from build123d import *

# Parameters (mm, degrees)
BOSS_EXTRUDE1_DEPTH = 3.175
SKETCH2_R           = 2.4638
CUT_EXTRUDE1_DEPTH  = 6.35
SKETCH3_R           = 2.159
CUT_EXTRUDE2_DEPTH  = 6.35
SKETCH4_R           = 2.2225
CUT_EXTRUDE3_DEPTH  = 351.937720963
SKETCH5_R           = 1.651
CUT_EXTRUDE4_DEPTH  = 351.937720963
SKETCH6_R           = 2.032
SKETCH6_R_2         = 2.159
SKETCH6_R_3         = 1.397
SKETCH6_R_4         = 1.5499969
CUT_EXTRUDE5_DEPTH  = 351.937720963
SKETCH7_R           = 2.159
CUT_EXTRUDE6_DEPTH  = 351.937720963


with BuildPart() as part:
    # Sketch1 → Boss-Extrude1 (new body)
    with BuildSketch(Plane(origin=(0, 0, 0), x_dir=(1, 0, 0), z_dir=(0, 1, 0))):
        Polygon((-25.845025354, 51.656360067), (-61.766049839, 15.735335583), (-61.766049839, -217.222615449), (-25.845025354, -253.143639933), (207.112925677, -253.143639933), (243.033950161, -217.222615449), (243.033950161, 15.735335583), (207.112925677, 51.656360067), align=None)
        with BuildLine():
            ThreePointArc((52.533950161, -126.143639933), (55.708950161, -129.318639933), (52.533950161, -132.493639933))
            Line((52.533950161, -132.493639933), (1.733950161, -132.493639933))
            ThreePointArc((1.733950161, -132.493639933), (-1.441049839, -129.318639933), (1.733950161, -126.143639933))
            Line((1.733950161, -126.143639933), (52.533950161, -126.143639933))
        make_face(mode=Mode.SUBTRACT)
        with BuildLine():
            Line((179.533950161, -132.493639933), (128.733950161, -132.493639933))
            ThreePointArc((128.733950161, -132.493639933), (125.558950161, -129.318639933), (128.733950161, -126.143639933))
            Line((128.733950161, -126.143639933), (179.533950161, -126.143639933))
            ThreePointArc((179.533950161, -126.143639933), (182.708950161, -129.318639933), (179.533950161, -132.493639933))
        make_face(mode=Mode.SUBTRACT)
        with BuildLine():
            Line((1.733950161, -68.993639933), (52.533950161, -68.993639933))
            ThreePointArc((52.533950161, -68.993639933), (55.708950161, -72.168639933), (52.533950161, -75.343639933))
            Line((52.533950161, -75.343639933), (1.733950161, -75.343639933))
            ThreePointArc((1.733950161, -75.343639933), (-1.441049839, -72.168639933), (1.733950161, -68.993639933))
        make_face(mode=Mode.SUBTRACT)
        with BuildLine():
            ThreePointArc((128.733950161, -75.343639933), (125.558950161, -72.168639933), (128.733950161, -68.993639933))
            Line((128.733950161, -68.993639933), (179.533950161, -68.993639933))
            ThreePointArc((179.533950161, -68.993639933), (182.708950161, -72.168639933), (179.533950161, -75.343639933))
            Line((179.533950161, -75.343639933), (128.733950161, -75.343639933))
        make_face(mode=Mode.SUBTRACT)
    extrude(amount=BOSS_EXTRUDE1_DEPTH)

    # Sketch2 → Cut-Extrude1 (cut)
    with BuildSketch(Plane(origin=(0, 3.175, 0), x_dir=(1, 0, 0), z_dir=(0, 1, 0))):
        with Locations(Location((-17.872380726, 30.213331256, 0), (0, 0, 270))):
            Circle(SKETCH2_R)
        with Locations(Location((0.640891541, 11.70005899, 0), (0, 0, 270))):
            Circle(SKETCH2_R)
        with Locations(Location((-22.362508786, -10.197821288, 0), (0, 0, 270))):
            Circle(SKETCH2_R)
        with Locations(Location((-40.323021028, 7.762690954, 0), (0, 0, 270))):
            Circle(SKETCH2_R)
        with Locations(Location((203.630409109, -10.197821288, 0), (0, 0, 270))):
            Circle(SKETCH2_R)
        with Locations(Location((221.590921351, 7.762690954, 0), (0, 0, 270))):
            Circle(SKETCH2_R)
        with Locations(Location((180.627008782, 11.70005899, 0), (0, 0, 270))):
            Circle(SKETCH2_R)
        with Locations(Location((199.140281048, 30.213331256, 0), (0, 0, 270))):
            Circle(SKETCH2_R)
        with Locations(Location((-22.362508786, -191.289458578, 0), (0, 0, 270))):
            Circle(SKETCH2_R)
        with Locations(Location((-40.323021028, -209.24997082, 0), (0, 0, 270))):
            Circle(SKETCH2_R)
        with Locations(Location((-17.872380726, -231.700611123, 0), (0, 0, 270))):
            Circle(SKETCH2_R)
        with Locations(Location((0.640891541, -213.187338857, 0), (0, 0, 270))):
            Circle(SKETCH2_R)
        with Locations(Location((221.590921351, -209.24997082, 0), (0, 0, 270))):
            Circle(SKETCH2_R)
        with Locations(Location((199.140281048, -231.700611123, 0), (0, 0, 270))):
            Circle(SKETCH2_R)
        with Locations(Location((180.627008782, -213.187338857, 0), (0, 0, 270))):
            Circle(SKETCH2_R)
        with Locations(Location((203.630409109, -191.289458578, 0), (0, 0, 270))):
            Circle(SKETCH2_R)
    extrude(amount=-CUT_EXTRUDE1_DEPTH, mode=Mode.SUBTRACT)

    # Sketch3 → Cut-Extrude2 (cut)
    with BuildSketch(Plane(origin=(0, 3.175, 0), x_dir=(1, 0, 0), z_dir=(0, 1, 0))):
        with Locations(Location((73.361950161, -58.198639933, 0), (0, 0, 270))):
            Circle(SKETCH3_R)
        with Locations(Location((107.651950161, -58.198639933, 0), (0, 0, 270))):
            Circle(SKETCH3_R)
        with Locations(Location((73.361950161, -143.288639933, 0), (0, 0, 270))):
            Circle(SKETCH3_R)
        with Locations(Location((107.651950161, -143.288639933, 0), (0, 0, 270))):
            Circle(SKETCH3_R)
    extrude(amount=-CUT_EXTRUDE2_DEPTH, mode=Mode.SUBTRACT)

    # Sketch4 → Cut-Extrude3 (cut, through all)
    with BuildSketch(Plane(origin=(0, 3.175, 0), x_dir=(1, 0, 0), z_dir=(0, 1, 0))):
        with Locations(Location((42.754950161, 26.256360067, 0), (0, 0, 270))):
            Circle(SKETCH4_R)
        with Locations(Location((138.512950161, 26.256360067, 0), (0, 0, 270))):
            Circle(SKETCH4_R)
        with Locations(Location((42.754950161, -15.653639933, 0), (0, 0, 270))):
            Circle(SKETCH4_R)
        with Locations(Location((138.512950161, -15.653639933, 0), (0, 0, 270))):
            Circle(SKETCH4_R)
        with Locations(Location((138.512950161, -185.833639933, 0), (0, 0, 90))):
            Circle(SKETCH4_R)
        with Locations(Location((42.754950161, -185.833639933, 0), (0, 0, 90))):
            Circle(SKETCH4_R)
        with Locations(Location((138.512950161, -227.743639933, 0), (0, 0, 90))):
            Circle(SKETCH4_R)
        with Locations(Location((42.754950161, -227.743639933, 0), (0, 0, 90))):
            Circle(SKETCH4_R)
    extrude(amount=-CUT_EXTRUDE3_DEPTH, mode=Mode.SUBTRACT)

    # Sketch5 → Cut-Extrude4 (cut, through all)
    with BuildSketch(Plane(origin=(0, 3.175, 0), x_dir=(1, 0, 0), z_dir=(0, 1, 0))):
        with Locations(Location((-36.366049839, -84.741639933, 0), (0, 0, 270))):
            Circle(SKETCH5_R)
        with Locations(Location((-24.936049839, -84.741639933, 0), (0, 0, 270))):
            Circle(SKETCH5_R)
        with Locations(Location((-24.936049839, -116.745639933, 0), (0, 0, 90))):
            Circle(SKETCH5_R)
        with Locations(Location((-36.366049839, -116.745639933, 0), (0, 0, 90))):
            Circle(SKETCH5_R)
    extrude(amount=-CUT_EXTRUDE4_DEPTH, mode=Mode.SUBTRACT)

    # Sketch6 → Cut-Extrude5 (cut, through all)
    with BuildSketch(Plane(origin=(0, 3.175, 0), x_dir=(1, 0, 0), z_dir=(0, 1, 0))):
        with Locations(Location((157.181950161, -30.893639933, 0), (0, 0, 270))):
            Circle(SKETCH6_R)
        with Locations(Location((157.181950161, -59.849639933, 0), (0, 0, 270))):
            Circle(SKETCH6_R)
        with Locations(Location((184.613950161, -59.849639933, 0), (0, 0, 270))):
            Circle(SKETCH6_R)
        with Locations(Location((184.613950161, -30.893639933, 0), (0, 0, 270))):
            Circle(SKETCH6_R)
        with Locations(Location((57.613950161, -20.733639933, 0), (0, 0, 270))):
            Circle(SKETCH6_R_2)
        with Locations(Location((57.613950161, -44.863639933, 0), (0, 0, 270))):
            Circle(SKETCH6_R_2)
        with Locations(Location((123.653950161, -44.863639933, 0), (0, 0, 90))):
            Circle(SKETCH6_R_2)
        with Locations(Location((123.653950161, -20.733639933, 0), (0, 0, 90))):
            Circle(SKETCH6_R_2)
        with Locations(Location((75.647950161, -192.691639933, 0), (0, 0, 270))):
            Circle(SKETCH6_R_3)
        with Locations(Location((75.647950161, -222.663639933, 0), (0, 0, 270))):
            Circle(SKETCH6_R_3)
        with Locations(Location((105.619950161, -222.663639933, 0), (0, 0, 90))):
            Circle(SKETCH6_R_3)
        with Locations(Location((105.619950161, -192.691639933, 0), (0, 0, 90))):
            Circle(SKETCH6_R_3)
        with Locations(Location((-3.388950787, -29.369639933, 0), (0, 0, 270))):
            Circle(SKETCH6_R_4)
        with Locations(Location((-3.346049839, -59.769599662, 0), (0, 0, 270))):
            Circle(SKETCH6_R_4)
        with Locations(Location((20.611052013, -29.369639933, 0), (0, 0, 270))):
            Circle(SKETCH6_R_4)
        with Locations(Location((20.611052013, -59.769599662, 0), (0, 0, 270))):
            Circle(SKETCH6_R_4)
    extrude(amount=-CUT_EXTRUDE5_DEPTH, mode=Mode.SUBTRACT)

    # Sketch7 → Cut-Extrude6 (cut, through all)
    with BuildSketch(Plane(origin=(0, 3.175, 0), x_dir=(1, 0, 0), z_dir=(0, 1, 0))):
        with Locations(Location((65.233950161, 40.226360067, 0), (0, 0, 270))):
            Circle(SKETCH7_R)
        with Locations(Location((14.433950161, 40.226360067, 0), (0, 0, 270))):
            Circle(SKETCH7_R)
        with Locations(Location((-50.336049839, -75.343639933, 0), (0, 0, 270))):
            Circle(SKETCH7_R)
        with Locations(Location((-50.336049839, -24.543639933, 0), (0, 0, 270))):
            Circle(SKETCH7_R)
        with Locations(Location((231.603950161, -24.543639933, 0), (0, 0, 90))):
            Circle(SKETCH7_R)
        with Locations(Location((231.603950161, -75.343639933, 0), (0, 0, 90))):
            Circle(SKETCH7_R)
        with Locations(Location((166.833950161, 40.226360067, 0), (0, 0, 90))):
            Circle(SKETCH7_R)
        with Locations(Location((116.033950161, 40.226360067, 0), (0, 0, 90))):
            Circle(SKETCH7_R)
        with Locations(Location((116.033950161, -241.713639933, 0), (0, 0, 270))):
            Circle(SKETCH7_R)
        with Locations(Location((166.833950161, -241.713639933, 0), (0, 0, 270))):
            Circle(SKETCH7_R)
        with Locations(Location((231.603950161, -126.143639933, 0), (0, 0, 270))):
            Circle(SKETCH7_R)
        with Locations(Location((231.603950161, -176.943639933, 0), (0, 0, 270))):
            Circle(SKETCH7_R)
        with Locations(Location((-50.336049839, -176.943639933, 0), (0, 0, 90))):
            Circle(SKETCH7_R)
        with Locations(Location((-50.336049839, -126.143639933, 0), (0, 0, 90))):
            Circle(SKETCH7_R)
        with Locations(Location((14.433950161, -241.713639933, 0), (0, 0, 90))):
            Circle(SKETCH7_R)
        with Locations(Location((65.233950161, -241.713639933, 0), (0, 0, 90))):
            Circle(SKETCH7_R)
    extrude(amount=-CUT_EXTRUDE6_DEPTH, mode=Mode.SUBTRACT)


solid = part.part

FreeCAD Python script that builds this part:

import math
import FreeCAD as App
import Part
import Sketcher

V = App.Vector
Q = App.Units.Quantity


def add_polygon(sketch, points):
    """Adds a closed chain of lines whose ends are joined by coincident constraints."""
    first, n = sketch.GeometryCount, len(points)
    for a, b in zip(points, points[1:] + points[:1]):
        sketch.addGeometry(Part.LineSegment(App.Vector(*a, 0), App.Vector(*b, 0)), False)
    for i in range(n):
        sketch.addConstraint(Sketcher.Constraint("Coincident", first + i, 2, first + (i + 1) % n, 1))

doc = App.newDocument("Part")
params = doc.addObject("Spreadsheet::Sheet", "Params")
for row, (alias, value) in enumerate([
    ("sketch1_width", "2 in"),
    ("sketch1_length", "2 in"),
    ("sketch1_radius", "0.125 in"),
    ("pad1_length", "0.125 in"),
    ("sketch2_diameter", "0.194 in"),
    ("pocket1_length", "0.25 in"),
    ("sketch3_diameter", "0.17 in"),
    ("pocket2_length", "0.25 in"),
    ("sketch4_diameter", "0.175 in"),
    ("sketch5_diameter", "0.13 in"),
    ("sketch6_diameter", "0.16 in"),
    ("sketch6_diameter2", "0.17 in"),
    ("sketch6_diameter3", "0.11 in"),
    ("sketch7_diameter", "0.17 in"),
], start=1):
    params.set(f"A{row}", alias)
    params.set(f"B{row}", "=" + value)
    params.setAlias(f"B{row}", alias)

body = doc.addObject("PartDesign::Body", "Body")

# Sketch on XZ plane
sketch1 = body.newObject("Sketcher::SketchObject", "Sketch")
sketch1.AttachmentSupport = (doc.getObject("XZ_Plane"), [""])
sketch1.MapMode = "FlatFace"
add_polygon(sketch1, [(-25.8, -51.7), (-61.8, -15.7), (-61.8, 217.2), (-25.8, 253.1), (207.1, 253.1), (243, 217.2), (243, -15.7), (207.1, -51.7)])  # lines 0-7
sketch1.addGeometry(Part.LineSegment(V(1.7, 126.1, 0), V(52.5, 126.1, 0)), False)  # 8
sketch1.addGeometry(Part.ArcOfCircle(Part.Circle(V(52.5, 129.3, 0), V(0, 0, 1), 3.2), math.radians(-90), math.radians(90)), False)  # 9
sketch1.addGeometry(Part.LineSegment(V(52.5, 132.5, 0), V(1.7, 132.5, 0)), False)  # 10
sketch1.addGeometry(Part.ArcOfCircle(Part.Circle(V(1.7, 129.3, 0), V(0, 0, 1), 3.2), math.radians(90), math.radians(270)), False)  # 11
sketch1.addGeometry(Part.ArcOfCircle(Part.Circle(V(179.5, 129.3, 0), V(0, 0, 1), 3.2), math.radians(-90), math.radians(90)), False)  # 12
sketch1.addGeometry(Part.LineSegment(V(179.5, 132.5, 0), V(128.7, 132.5, 0)), False)  # 13
sketch1.addGeometry(Part.ArcOfCircle(Part.Circle(V(128.7, 129.3, 0), V(0, 0, 1), 3.2), math.radians(90), math.radians(270)), False)  # 14
sketch1.addGeometry(Part.LineSegment(V(128.7, 126.1, 0), V(179.5, 126.1, 0)), False)  # 15
sketch1.addGeometry(Part.ArcOfCircle(Part.Circle(V(1.7, 72.2, 0), V(0, 0, 1), 3.2), math.radians(90), math.radians(270)), False)  # 16
sketch1.addGeometry(Part.LineSegment(V(1.7, 69, 0), V(52.5, 69, 0)), False)  # 17
sketch1.addGeometry(Part.ArcOfCircle(Part.Circle(V(52.5, 72.2, 0), V(0, 0, 1), 3.2), math.radians(-90), math.radians(90)), False)  # 18
sketch1.addGeometry(Part.LineSegment(V(52.5, 75.3, 0), V(1.7, 75.3, 0)), False)  # 19
sketch1.addGeometry(Part.LineSegment(V(179.5, 75.3, 0), V(128.7, 75.3, 0)), False)  # 20
sketch1.addGeometry(Part.ArcOfCircle(Part.Circle(V(128.7, 72.2, 0), V(0, 0, 1), 3.2), math.radians(90), math.radians(270)), False)  # 21
sketch1.addGeometry(Part.LineSegment(V(128.7, 69, 0), V(179.5, 69, 0)), False)  # 22
sketch1.addGeometry(Part.ArcOfCircle(Part.Circle(V(179.5, 72.2, 0), V(0, 0, 1), 3.2), math.radians(-90), math.radians(90)), False)  # 23
sketch1.addConstraint([
    Sketcher.Constraint("Tangent", 8, 2, 9, 1),
    Sketcher.Constraint("Tangent", 9, 2, 10, 1),
    Sketcher.Constraint("Tangent", 10, 2, 11, 1),
    Sketcher.Constraint("Tangent", 11, 2, 8, 1),
    Sketcher.Constraint("Tangent", 12, 2, 13, 1),
    Sketcher.Constraint("Tangent", 13, 2, 14, 1),
    Sketcher.Constraint("Tangent", 14, 2, 15, 1),
    Sketcher.Constraint("Tangent", 15, 2, 12, 1),
    Sketcher.Constraint("Tangent", 16, 2, 17, 1),
    Sketcher.Constraint("Tangent", 17, 2, 18, 1),
    Sketcher.Constraint("Tangent", 18, 2, 19, 1),
    Sketcher.Constraint("Tangent", 19, 2, 16, 1),
    Sketcher.Constraint("Tangent", 20, 2, 21, 1),
    Sketcher.Constraint("Tangent", 21, 2, 22, 1),
    Sketcher.Constraint("Tangent", 22, 2, 23, 1),
    Sketcher.Constraint("Tangent", 23, 2, 20, 1),
    Sketcher.Constraint("Vertical", 1),
    Sketcher.Constraint("Horizontal", 3),
    Sketcher.Constraint("Vertical", 5),
    Sketcher.Constraint("Horizontal", 7),
    Sketcher.Constraint("Horizontal", 8),
    Sketcher.Constraint("Horizontal", 10),
    Sketcher.Constraint("Horizontal", 13),
    Sketcher.Constraint("Horizontal", 15),
    Sketcher.Constraint("Horizontal", 17),
    Sketcher.Constraint("Horizontal", 19),
    Sketcher.Constraint("Horizontal", 20),
    Sketcher.Constraint("Horizontal", 22),
    Sketcher.Constraint("Equal", 11, 12),
    Sketcher.Constraint("Equal", 14, 16),
    Sketcher.Constraint("Equal", 18, 21),
    Sketcher.Constraint("Perpendicular", 0, 2),
    Sketcher.Constraint("Perpendicular", 2, 4),
    Sketcher.Constraint("Perpendicular", 4, 6),
    Sketcher.Constraint("Horizontal", 11, 3, 12, 3),
    Sketcher.Constraint("Horizontal", 18, 3, 21, 3),
    Sketcher.Constraint("Horizontal", 1, 2, 4, 2),
    Sketcher.Constraint("Horizontal", 0, 2, 5, 2),
    Sketcher.Constraint("Vertical", 11, 3, 16, 3),
    Sketcher.Constraint("Vertical", 9, 3, 18, 3),
    Sketcher.Constraint("Vertical", 14, 3, 21, 3),
    Sketcher.Constraint("Vertical", 12, 3, 23, 3),
    Sketcher.Constraint("Vertical", 3, 2, 6, 2),
    Sketcher.Constraint("Vertical", 2, 2, 7, 2),
    Sketcher.Constraint("Equal", 10, 13),
    Sketcher.Constraint("Equal", 7, 1),
    Sketcher.Constraint("DistanceX", 8, 1, 8, 2, Q("2 in")),
    Sketcher.Constraint("Distance", 0, Q("2 in")),
    Sketcher.Constraint("Radius", 9, Q("0.125 in")),
    Sketcher.Constraint("DistanceX", 9, 3, 12, 3, Q("5 in")),
    Sketcher.Constraint("DistanceY", 18, 2, 8, 2, Q("2 in")),
    Sketcher.Constraint("DistanceX", 0, 2, 16, 3, Q("2.5 in")),
    Sketcher.Constraint("DistanceX", 12, 3, 4, 2, Q("2.5 in")),
    Sketcher.Constraint("DistanceY", 11, 3, 2, 2, Q("4.875 in")),
    Sketcher.Constraint("DistanceX", -1, 1, 9, 3, 52.53395),
    Sketcher.Constraint("DistanceY", -1, 1, 9, 3, 129.31864),
])
sketch1.setExpression("Constraints[54]", "Params.sketch1_width")
sketch1.setExpression("Constraints[55]", "Params.sketch1_length")
sketch1.setExpression("Constraints[56]", "Params.sketch1_radius")
pad1 = body.newObject("PartDesign::Pad", "Pad")
pad1.Profile = sketch1
pad1.setExpression("Length", "Params.pad1_length")
pad1.Reversed = True

# Sketch on XZ plane
sketch2 = body.newObject("Sketcher::SketchObject", "Sketch001")
sketch2.AttachmentSupport = (doc.getObject("XZ_Plane"), [""])
sketch2.MapMode = "FlatFace"
sketch2.AttachmentOffset = App.Placement(V(0, 0, -0.125 * 25.4), App.Rotation())
sketch2.addGeometry([
    Part.Circle(V(-17.9, -30.2, 0), V(0, 0, 1), 2.5),  # 0
    Part.Circle(V(0.6, -11.7, 0), V(0, 0, 1), 2.5),  # 1
    Part.Circle(V(-22.4, 10.2, 0), V(0, 0, 1), 2.5),  # 2
    Part.Circle(V(-40.3, -7.8, 0), V(0, 0, 1), 2.5),  # 3
    Part.Circle(V(203.6, 10.2, 0), V(0, 0, 1), 2.5),  # 4
    Part.Circle(V(221.6, -7.8, 0), V(0, 0, 1), 2.5),  # 5
    Part.Circle(V(180.6, -11.7, 0), V(0, 0, 1), 2.5),  # 6
    Part.Circle(V(199.1, -30.2, 0), V(0, 0, 1), 2.5),  # 7
    Part.Circle(V(-22.4, 191.3, 0), V(0, 0, 1), 2.5),  # 8
    Part.Circle(V(-40.3, 209.2, 0), V(0, 0, 1), 2.5),  # 9
    Part.Circle(V(-17.9, 231.7, 0), V(0, 0, 1), 2.5),  # 10
    Part.Circle(V(0.6, 213.2, 0), V(0, 0, 1), 2.5),  # 11
    Part.Circle(V(221.6, 209.2, 0), V(0, 0, 1), 2.5),  # 12
    Part.Circle(V(199.1, 231.7, 0), V(0, 0, 1), 2.5),  # 13
    Part.Circle(V(180.6, 213.2, 0), V(0, 0, 1), 2.5),  # 14
    Part.Circle(V(203.6, 191.3, 0), V(0, 0, 1), 2.5),  # 15
], False)
sketch2.addConstraint([
    Sketcher.Constraint("Equal", 0, 1),
    Sketcher.Constraint("Equal", 1, 2),
    Sketcher.Constraint("Equal", 2, 3),
    Sketcher.Constraint("Equal", 3, 4),
    Sketcher.Constraint("Equal", 4, 5),
    Sketcher.Constraint("Equal", 5, 6),
    Sketcher.Constraint("Equal", 6, 7),
    Sketcher.Constraint("Equal", 7, 8),
    Sketcher.Constraint("Equal", 8, 9),
    Sketcher.Constraint("Equal", 9, 10),
    Sketcher.Constraint("Equal", 10, 11),
    Sketcher.Constraint("Equal", 11, 12),
    Sketcher.Constraint("Equal", 12, 13),
    Sketcher.Constraint("Equal", 13, 14),
    Sketcher.Constraint("Equal", 14, 15),
    Sketcher.Constraint("Horizontal", 2, 3, 4, 3),
    Sketcher.Constraint("Horizontal", 3, 3, 5, 3),
    Sketcher.Constraint("Horizontal", 1, 3, 6, 3),
    Sketcher.Constraint("Horizontal", 0, 3, 7, 3),
    Sketcher.Constraint("Horizontal", 9, 3, 12, 3),
    Sketcher.Constraint("Horizontal", 10, 3, 13, 3),
    Sketcher.Constraint("Horizontal", 11, 3, 14, 3),
    Sketcher.Constraint("Horizontal", 8, 3, 15, 3),
    Sketcher.Constraint("Vertical", 2, 3, 8, 3),
    Sketcher.Constraint("Vertical", 3, 3, 9, 3),
    Sketcher.Constraint("Vertical", 0, 3, 10, 3),
    Sketcher.Constraint("Vertical", 1, 3, 11, 3),
    Sketcher.Constraint("Vertical", 5, 3, 12, 3),
    Sketcher.Constraint("Vertical", 7, 3, 13, 3),
    Sketcher.Constraint("Vertical", 6, 3, 14, 3),
    Sketcher.Constraint("Vertical", 4, 3, 15, 3),
    Sketcher.Constraint("Diameter", 0, Q("0.194 in")),
    Sketcher.Constraint("DistanceX", 2, 3, 1, 3, 23.0034),
    Sketcher.Constraint("DistanceX", 6, 3, 4, 3, 23.0034),
    Sketcher.Constraint("DistanceX", 0, 3, -1, 1, 17.872381),
    Sketcher.Constraint("DistanceY", 0, 3, -1, 1, 30.213331),
    Sketcher.Constraint("DistanceX", -1, 1, 1, 3, 0.640892),
    Sketcher.Constraint("DistanceY", 1, 3, -1, 1, 11.700059),
    Sketcher.Constraint("DistanceY", -1, 1, 2, 3, 10.197821),
    Sketcher.Constraint("DistanceX", 3, 3, -1, 1, 40.323021),
    Sketcher.Constraint("DistanceY", 3, 3, -1, 1, 7.762691),
    Sketcher.Constraint("DistanceX", -1, 1, 4, 3, 203.630409),
    Sketcher.Constraint("DistanceX", -1, 1, 5, 3, 221.590921),
    Sketcher.Constraint("DistanceX", -1, 1, 7, 3, 199.140281),
    Sketcher.Constraint("DistanceY", -1, 1, 8, 3, 191.289459),
    Sketcher.Constraint("DistanceY", -1, 1, 9, 3, 209.249971),
    Sketcher.Constraint("DistanceY", -1, 1, 10, 3, 231.700611),
    Sketcher.Constraint("DistanceY", -1, 1, 11, 3, 213.187339),
])
sketch2.setExpression("Constraints[31]", "Params.sketch2_diameter")
pocket1 = body.newObject("PartDesign::Pocket", "Pocket")
pocket1.Profile = sketch2
pocket1.setExpression("Length", "Params.pocket1_length")
pocket1.Reversed = True

# Sketch on XZ plane
sketch3 = body.newObject("Sketcher::SketchObject", "Sketch002")
sketch3.AttachmentSupport = (doc.getObject("XZ_Plane"), [""])
sketch3.MapMode = "FlatFace"
sketch3.AttachmentOffset = App.Placement(V(0, 0, -0.125 * 25.4), App.Rotation())
sketch3.addGeometry([
    Part.Circle(V(73.4, 58.2, 0), V(0, 0, 1), 2.2),
    Part.Circle(V(107.7, 58.2, 0), V(0, 0, 1), 2.2),
    Part.Circle(V(73.4, 143.3, 0), V(0, 0, 1), 2.2),
    Part.Circle(V(107.7, 143.3, 0), V(0, 0, 1), 2.2),
], False)
sketch3.addConstraint([
    Sketcher.Constraint("Equal", 0, 1),
    Sketcher.Constraint("Equal", 1, 2),
    Sketcher.Constraint("Equal", 2, 3),
    Sketcher.Constraint("Horizontal", 0, 3, 1, 3),
    Sketcher.Constraint("Horizontal", 2, 3, 3, 3),
    Sketcher.Constraint("Vertical", 0, 3, 2, 3),
    Sketcher.Constraint("Vertical", 1, 3, 3, 3),
    Sketcher.Constraint("Diameter", 0, Q("0.17 in")),
    Sketcher.Constraint("DistanceX", 0, 3, 1, 3, Q("1.35 in")),
    Sketcher.Constraint("DistanceY", 0, 3, 2, 3, Q("3.35 in")),
    Sketcher.Constraint("DistanceX", -1, 1, 0, 3, 73.36195),
    Sketcher.Constraint("DistanceY", -1, 1, 0, 3, 58.19864),
])
sketch3.setExpression("Constraints[7]", "Params.sketch3_diameter")
pocket2 = body.newObject("PartDesign::Pocket", "Pocket001")
pocket2.Profile = sketch3
pocket2.setExpression("Length", "Params.pocket2_length")
pocket2.Reversed = True

# Sketch on XZ plane
sketch4 = body.newObject("Sketcher::SketchObject", "Sketch003")
sketch4.AttachmentSupport = (doc.getObject("XZ_Plane"), [""])
sketch4.MapMode = "FlatFace"
sketch4.AttachmentOffset = App.Placement(V(0, 0, -0.125 * 25.4), App.Rotation())
sketch4.addGeometry([
    Part.Circle(V(42.8, -26.3, 0), V(0, 0, 1), 2.2),  # 0
    Part.Circle(V(138.5, -26.3, 0), V(0, 0, 1), 2.2),  # 1
    Part.Circle(V(42.8, 15.7, 0), V(0, 0, 1), 2.2),  # 2
    Part.Circle(V(138.5, 15.7, 0), V(0, 0, 1), 2.2),  # 3
    Part.Circle(V(138.5, 185.8, 0), V(0, 0, 1), 2.2),  # 4
    Part.Circle(V(42.8, 185.8, 0), V(0, 0, 1), 2.2),  # 5
    Part.Circle(V(138.5, 227.7, 0), V(0, 0, 1), 2.2),  # 6
    Part.Circle(V(42.8, 227.7, 0), V(0, 0, 1), 2.2),  # 7
], False)
sketch4.addConstraint([
    Sketcher.Constraint("Equal", 0, 1),
    Sketcher.Constraint("Equal", 1, 2),
    Sketcher.Constraint("Equal", 2, 3),
    Sketcher.Constraint("Equal", 3, 4),
    Sketcher.Constraint("Equal", 4, 5),
    Sketcher.Constraint("Equal", 5, 6),
    Sketcher.Constraint("Equal", 6, 7),
    Sketcher.Constraint("Horizontal", 0, 3, 1, 3),
    Sketcher.Constraint("Horizontal", 2, 3, 3, 3),
    Sketcher.Constraint("Horizontal", 4, 3, 5, 3),
    Sketcher.Constraint("Horizontal", 6, 3, 7, 3),
    Sketcher.Constraint("Vertical", 0, 3, 2, 3),
    Sketcher.Constraint("Vertical", 1, 3, 3, 3),
    Sketcher.Constraint("Vertical", 3, 3, 4, 3),
    Sketcher.Constraint("Vertical", 2, 3, 5, 3),
    Sketcher.Constraint("Vertical", 4, 3, 6, 3),
    Sketcher.Constraint("Vertical", 5, 3, 7, 3),
    Sketcher.Constraint("Diameter", 0, Q("0.175 in")),
    Sketcher.Constraint("DistanceY", 1, 3, 6, 3, Q("10 in")),
    Sketcher.Constraint("DistanceY", 3, 3, 4, 3, Q("6.7 in")),
    Sketcher.Constraint("DistanceX", 0, 3, 1, 3, Q("3.77 in")),
    Sketcher.Constraint("DistanceY", 0, 3, 2, 3, Q("1.65 in")),
    Sketcher.Constraint("DistanceX", -1, 1, 0, 3, 42.75495),
    Sketcher.Constraint("DistanceY", 0, 3, -1, 1, 26.25636),
])
sketch4.setExpression("Constraints[17]", "Params.sketch4_diameter")
pocket3 = body.newObject("PartDesign::Pocket", "Pocket002")
pocket3.Profile = sketch4
pocket3.Type = "ThroughAll"
pocket3.Reversed = True

# Sketch on XZ plane
sketch5 = body.newObject("Sketcher::SketchObject", "Sketch004")
sketch5.AttachmentSupport = (doc.getObject("XZ_Plane"), [""])
sketch5.MapMode = "FlatFace"
sketch5.AttachmentOffset = App.Placement(V(0, 0, -0.125 * 25.4), App.Rotation())
sketch5.addGeometry([
    Part.Circle(V(-36.4, 84.7, 0), V(0, 0, 1), 1.7),
    Part.Circle(V(-24.9, 84.7, 0), V(0, 0, 1), 1.7),
    Part.Circle(V(-24.9, 116.7, 0), V(0, 0, 1), 1.7),
    Part.Circle(V(-36.4, 116.7, 0), V(0, 0, 1), 1.7),
], False)
sketch5.addConstraint([
    Sketcher.Constraint("Equal", 0, 1),
    Sketcher.Constraint("Equal", 1, 2),
    Sketcher.Constraint("Equal", 2, 3),
    Sketcher.Constraint("Horizontal", 0, 3, 1, 3),
    Sketcher.Constraint("Horizontal", 2, 3, 3, 3),
    Sketcher.Constraint("Vertical", 1, 3, 2, 3),
    Sketcher.Constraint("Vertical", 0, 3, 3, 3),
    Sketcher.Constraint("Diameter", 0, Q("0.13 in")),
    Sketcher.Constraint("DistanceX", 0, 3, 1, 3, Q("0.45 in")),
    Sketcher.Constraint("DistanceY", 1, 3, 2, 3, Q("1.26 in")),
    Sketcher.Constraint("DistanceX", 0, 3, -1, 1, 36.36605),
    Sketcher.Constraint("DistanceY", -1, 1, 0, 3, 84.74164),
])
sketch5.setExpression("Constraints[7]", "Params.sketch5_diameter")
pocket4 = body.newObject("PartDesign::Pocket", "Pocket003")
pocket4.Profile = sketch5
pocket4.Type = "ThroughAll"
pocket4.Reversed = True

# Sketch on XZ plane
sketch6 = body.newObject("Sketcher::SketchObject", "Sketch005")
sketch6.AttachmentSupport = (doc.getObject("XZ_Plane"), [""])
sketch6.MapMode = "FlatFace"
sketch6.AttachmentOffset = App.Placement(V(0, 0, -0.125 * 25.4), App.Rotation())
sketch6.addGeometry([
    Part.Circle(V(157.2, 30.9, 0), V(0, 0, 1), 2),  # 0
    Part.Circle(V(157.2, 59.8, 0), V(0, 0, 1), 2),  # 1
    Part.Circle(V(184.6, 59.8, 0), V(0, 0, 1), 2),  # 2
    Part.Circle(V(184.6, 30.9, 0), V(0, 0, 1), 2),  # 3
    Part.Circle(V(57.6, 20.7, 0), V(0, 0, 1), 2.2),  # 4
    Part.Circle(V(57.6, 44.9, 0), V(0, 0, 1), 2.2),  # 5
    Part.Circle(V(123.7, 44.9, 0), V(0, 0, 1), 2.2),  # 6
    Part.Circle(V(123.7, 20.7, 0), V(0, 0, 1), 2.2),  # 7
    Part.Circle(V(75.6, 192.7, 0), V(0, 0, 1), 1.4),  # 8
    Part.Circle(V(75.6, 222.7, 0), V(0, 0, 1), 1.4),  # 9
    Part.Circle(V(105.6, 222.7, 0), V(0, 0, 1), 1.4),  # 10
    Part.Circle(V(105.6, 192.7, 0), V(0, 0, 1), 1.4),  # 11
    Part.Circle(V(-3.4, 29.4, 0), V(0, 0, 1), 1.5),  # 12
    Part.Circle(V(-3.3, 59.8, 0), V(0, 0, 1), 1.5),  # 13
    Part.Circle(V(20.6, 29.4, 0), V(0, 0, 1), 1.5),  # 14
    Part.Circle(V(20.6, 59.8, 0), V(0, 0, 1), 1.5),  # 15
], False)
sketch6.addConstraint([
    Sketcher.Constraint("Equal", 0, 1),
    Sketcher.Constraint("Equal", 1, 2),
    Sketcher.Constraint("Equal", 2, 3),
    Sketcher.Constraint("Equal", 4, 5),
    Sketcher.Constraint("Equal", 5, 6),
    Sketcher.Constraint("Equal", 6, 7),
    Sketcher.Constraint("Equal", 8, 9),
    Sketcher.Constraint("Equal", 9, 10),
    Sketcher.Constraint("Equal", 10, 11),
    Sketcher.Constraint("Equal", 12, 13),
    Sketcher.Constraint("Equal", 13, 14),
    Sketcher.Constraint("Equal", 14, 15),
    Sketcher.Constraint("Horizontal", 1, 3, 2, 3),
    Sketcher.Constraint("Horizontal", 0, 3, 3, 3),
    Sketcher.Constraint("Horizontal", 5, 3, 6, 3),
    Sketcher.Constraint("Horizontal", 4, 3, 7, 3),
    Sketcher.Constraint("Horizontal", 9, 3, 10, 3),
    Sketcher.Constraint("Horizontal", 8, 3, 11, 3),
    Sketcher.Constraint("Horizontal", 12, 3, 14, 3),
    Sketcher.Constraint("Horizontal", 13, 3, 15, 3),
    Sketcher.Constraint("Vertical", 0, 3, 1, 3),
    Sketcher.Constraint("Vertical", 2, 3, 3, 3),
    Sketcher.Constraint("Vertical", 4, 3, 5, 3),
    Sketcher.Constraint("Vertical", 6, 3, 7, 3),
    Sketcher.Constraint("Vertical", 8, 3, 9, 3),
    Sketcher.Constraint("Vertical", 10, 3, 11, 3),
    Sketcher.Constraint("Vertical", 14, 3, 15, 3),
    Sketcher.Constraint("Diameter", 0, Q("0.16 in")),
    Sketcher.Constraint("Diameter", 4, Q("0.17 in")),
    Sketcher.Constraint("Diameter", 8, Q("0.11 in")),
    Sketcher.Constraint("DistanceX", 4, 3, 3, 3, Q("5 in")),
    Sketcher.Constraint("DistanceY", 5, 3, 9, 3, Q("7 in")),
    Sketcher.Constraint("DistanceX", 13, 3, 6, 3, Q("5 in")),
    Sketcher.Constraint("DistanceY", 4, 3, 0, 3, Q("0.4 in")),
    Sketcher.Constraint("DistanceX", 6, 3, 3, 3, Q("2.4 in")),
    Sketcher.Constraint("DistanceY", 0, 3, 1, 3, Q("1.14 in")),
    Sketcher.Constraint("DistanceX", 1, 3, 2, 3, Q("1.08 in")),
    Sketcher.Constraint("DistanceY", 4, 3, 5, 3, Q("0.95 in")),
    Sketcher.Constraint("DistanceX", 5, 3, 8, 3, Q("0.71 in")),
    Sketcher.Constraint("DistanceY", 5, 3, 8, 3, Q("5.82 in")),
    Sketcher.Constraint("DistanceX", 9, 3, 10, 3, Q("1.18 in")),
    Sketcher.Constraint("DistanceY", 4, 3, 12, 3, Q("0.34 in")),
    Sketcher.Constraint("Diameter", 12, 3.099994),
    Sketcher.Constraint("DistanceY", -1, 1, 13, 3, 59.7696),
    Sketcher.Constraint("DistanceX", 12, 3, 4, 3, 61.002901),
    Sketcher.Constraint("DistanceX", 14, 3, 4, 3, 37.002898),
    Sketcher.Constraint("DistanceX", -1, 1, 0, 3, 157.18195),
    Sketcher.Constraint("DistanceY", -1, 1, 0, 3, 30.89364),
])
sketch6.setExpression("Constraints[27]", "Params.sketch6_diameter")
sketch6.setExpression("Constraints[28]", "Params.sketch6_diameter2")
sketch6.setExpression("Constraints[29]", "Params.sketch6_diameter3")
pocket5 = body.newObject("PartDesign::Pocket", "Pocket004")
pocket5.Profile = sketch6
pocket5.Type = "ThroughAll"
pocket5.Reversed = True

# Sketch on XZ plane
sketch7 = body.newObject("Sketcher::SketchObject", "Sketch006")
sketch7.AttachmentSupport = (doc.getObject("XZ_Plane"), [""])
sketch7.MapMode = "FlatFace"
sketch7.AttachmentOffset = App.Placement(V(0, 0, -0.125 * 25.4), App.Rotation())
sketch7.addGeometry([
    Part.Circle(V(65.2, -40.2, 0), V(0, 0, 1), 2.2),  # 0
    Part.Circle(V(14.4, -40.2, 0), V(0, 0, 1), 2.2),  # 1
    Part.Circle(V(-50.3, 75.3, 0), V(0, 0, 1), 2.2),  # 2
    Part.Circle(V(-50.3, 24.5, 0), V(0, 0, 1), 2.2),  # 3
    Part.Circle(V(231.6, 24.5, 0), V(0, 0, 1), 2.2),  # 4
    Part.Circle(V(231.6, 75.3, 0), V(0, 0, 1), 2.2),  # 5
    Part.Circle(V(166.8, -40.2, 0), V(0, 0, 1), 2.2),  # 6
    Part.Circle(V(116, -40.2, 0), V(0, 0, 1), 2.2),  # 7
    Part.Circle(V(116, 241.7, 0), V(0, 0, 1), 2.2),  # 8
    Part.Circle(V(166.8, 241.7, 0), V(0, 0, 1), 2.2),  # 9
    Part.Circle(V(231.6, 126.1, 0), V(0, 0, 1), 2.2),  # 10
    Part.Circle(V(231.6, 176.9, 0), V(0, 0, 1), 2.2),  # 11
    Part.Circle(V(-50.3, 176.9, 0), V(0, 0, 1), 2.2),  # 12
    Part.Circle(V(-50.3, 126.1, 0), V(0, 0, 1), 2.2),  # 13
    Part.Circle(V(14.4, 241.7, 0), V(0, 0, 1), 2.2),  # 14
    Part.Circle(V(65.2, 241.7, 0), V(0, 0, 1), 2.2),  # 15
], False)
sketch7.addConstraint([
    Sketcher.Constraint("Equal", 0, 1),
    Sketcher.Constraint("Equal", 1, 2),
    Sketcher.Constraint("Equal", 2, 3),
    Sketcher.Constraint("Equal", 3, 4),
    Sketcher.Constraint("Equal", 4, 5),
    Sketcher.Constraint("Equal", 5, 6),
    Sketcher.Constraint("Equal", 6, 7),
    Sketcher.Constraint("Equal", 7, 8),
    Sketcher.Constraint("Equal", 8, 9),
    Sketcher.Constraint("Equal", 9, 10),
    Sketcher.Constraint("Equal", 10, 11),
    Sketcher.Constraint("Equal", 11, 12),
    Sketcher.Constraint("Equal", 12, 13),
    Sketcher.Constraint("Equal", 13, 14),
    Sketcher.Constraint("Equal", 14, 15),
    Sketcher.Constraint("Horizontal", 0, 3, 1, 3),
    Sketcher.Constraint("Horizontal", 3, 3, 4, 3),
    Sketcher.Constraint("Horizontal", 2, 3, 5, 3),
    Sketcher.Constraint("Horizontal", 1, 3, 6, 3),
    Sketcher.Constraint("Horizontal", 6, 3, 7, 3),
    Sketcher.Constraint("Horizontal", 8, 3, 9, 3),
    Sketcher.Constraint("Horizontal", 11, 3, 12, 3),
    Sketcher.Constraint("Horizontal", 10, 3, 13, 3),
    Sketcher.Constraint("Horizontal", 9, 3, 14, 3),
    Sketcher.Constraint("Horizontal", 14, 3, 15, 3),
    Sketcher.Constraint("Vertical", 2, 3, 3, 3),
    Sketcher.Constraint("Vertical", 4, 3, 5, 3),
    Sketcher.Constraint("Vertical", 7, 3, 8, 3),
    Sketcher.Constraint("Vertical", 6, 3, 9, 3),
    Sketcher.Constraint("Vertical", 5, 3, 10, 3),
    Sketcher.Constraint("Vertical", 10, 3, 11, 3),
    Sketcher.Constraint("Vertical", 3, 3, 12, 3),
    Sketcher.Constraint("Vertical", 12, 3, 13, 3),
    Sketcher.Constraint("Vertical", 1, 3, 14, 3),
    Sketcher.Constraint("Vertical", 0, 3, 15, 3),
    Sketcher.Constraint("Diameter", 0, Q("0.17 in")),
    Sketcher.Constraint("DistanceX", 1, 3, 0, 3, Q("2 in")),
    Sketcher.Constraint("DistanceY", 3, 3, 2, 3, Q("2 in")),
    Sketcher.Constraint("DistanceX", 0, 3, 6, 3, Q("4 in")),
    Sketcher.Constraint("DistanceX", 7, 3, 6, 3, Q("2 in")),
    Sketcher.Constraint("DistanceY", 5, 3, 10, 3, Q("2 in")),
    Sketcher.Constraint("DistanceY", 10, 3, 11, 3, Q("2 in")),
    Sketcher.Constraint("DistanceX", 3, 3, 4, 3, Q("11.1 in")),
    Sketcher.Constraint("DistanceY", 7, 3, 8, 3, Q("11.1 in")),
    Sketcher.Constraint("DistanceX", 2, 3, 1, 3, Q("2.55 in")),
    Sketcher.Constraint("DistanceY", 1, 3, 2, 3, Q("4.55 in")),
    Sketcher.Constraint("DistanceX", -1, 1, 0, 3, 65.23395),
    Sketcher.Constraint("DistanceY", 0, 3, -1, 1, 40.22636),
])
sketch7.setExpression("Constraints[35]", "Params.sketch7_diameter")
pocket6 = body.newObject("PartDesign::Pocket", "Pocket005")
pocket6.Profile = sketch7
pocket6.Type = "ThroughAll"
pocket6.Reversed = True

doc.recompute()
